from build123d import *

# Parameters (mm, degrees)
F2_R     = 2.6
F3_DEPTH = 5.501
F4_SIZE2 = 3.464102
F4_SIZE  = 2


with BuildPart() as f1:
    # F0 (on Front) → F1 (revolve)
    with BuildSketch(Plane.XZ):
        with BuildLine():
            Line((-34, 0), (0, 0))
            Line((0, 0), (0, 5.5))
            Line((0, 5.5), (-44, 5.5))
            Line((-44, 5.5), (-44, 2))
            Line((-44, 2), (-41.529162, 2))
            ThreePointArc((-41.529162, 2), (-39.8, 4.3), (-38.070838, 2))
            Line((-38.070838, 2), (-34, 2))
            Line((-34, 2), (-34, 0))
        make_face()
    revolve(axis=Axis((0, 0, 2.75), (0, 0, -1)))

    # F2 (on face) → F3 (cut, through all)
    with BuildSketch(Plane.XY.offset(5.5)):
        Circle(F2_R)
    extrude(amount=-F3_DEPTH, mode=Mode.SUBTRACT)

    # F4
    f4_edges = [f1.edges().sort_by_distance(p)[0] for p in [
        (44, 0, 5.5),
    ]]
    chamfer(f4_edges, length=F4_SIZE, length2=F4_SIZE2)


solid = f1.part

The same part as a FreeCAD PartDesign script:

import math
import FreeCAD as App
import Part
import Sketcher
Q = App.Units.Quantity


def edges_at(feature, points):
    """Names of the edges that pass closest to the given points."""
    edges = feature.Shape.Edges
    near = lambda p: min(range(len(edges)), key=lambda i: edges[i].distToShape(Part.Vertex(*p))[0])
    return sorted({f"Edge{near(p) + 1}" for p in points})

doc = App.newDocument("Part")
body = doc.addObject("PartDesign::Body", "Body")

sketch1 = body.newObject("Sketcher::SketchObject", "Sketch")
sketch1.AttachmentSupport = (doc.getObject("XZ_Plane"), [""])
sketch1.MapMode = "FlatFace"
sketch1.addGeometry([
    Part.LineSegment(App.Vector(-34, 0, 0), App.Vector(0, 0, 0)),
    Part.LineSegment(App.Vector(0, 0, 0), App.Vector(0, 5.5, 0)),
    Part.LineSegment(App.Vector(0, 5.5, 0), App.Vector(-44, 5.5, 0)),
    Part.LineSegment(App.Vector(-44, 5.5, 0), App.Vector(-44, 2, 0)),
    Part.LineSegment(App.Vector(-44, 2, 0), App.Vector(-41.5, 2, 0)),
    Part.ArcOfCircle(Part.Circle(App.Vector(-39.8, 2.5, 0), App.Vector(0, 0, 1), 1.8), math.radians(-16), math.radians(196)),
    Part.LineSegment(App.Vector(-38.1, 2, 0), App.Vector(-34, 2, 0)),
    Part.LineSegment(App.Vector(-34, 2, 0), App.Vector(-34, 0, 0)),
], False)
sketch1.addConstraint([
    Sketcher.Constraint("Coincident", 0, 2, 1, 1),
    Sketcher.Constraint("Coincident", 1, 2, 2, 1),
    Sketcher.Constraint("Coincident", 2, 2, 3, 1),
    Sketcher.Constraint("Coincident", 3, 2, 4, 1),
    Sketcher.Constraint("Coincident", 4, 2, 5, 2),
    Sketcher.Constraint("Coincident", 5, 1, 6, 1),
    Sketcher.Constraint("Coincident", 6, 2, 7, 1),
    Sketcher.Constraint("Coincident", 7, 2, 0, 1),
    Sketcher.Constraint("Horizontal", 0),
    Sketcher.Constraint("Vertical", 1),
    Sketcher.Constraint("Horizontal", 2),
    Sketcher.Constraint("Vertical", 3),
    Sketcher.Constraint("Horizontal", 4),
    Sketcher.Constraint("Horizontal", 6),
    Sketcher.Constraint("Vertical", 7),
    Sketcher.Constraint("Coincident", 0, 2, -1, 1),
    Sketcher.Constraint("Horizontal", 4, 2, 5, 1),
    Sketcher.Constraint("Radius", 5, Q("1.8 mm")),
    Sketcher.Constraint("DistanceX", 0, 1, 0, 2, Q("34 mm")),
    Sketcher.Constraint("DistanceX", 2, 2, 2, 1, Q("44 mm")),
    Sketcher.Constraint("DistanceY", 7, 2, 7, 1, Q("2 mm")),
    Sketcher.Constraint("DistanceY", 1, 1, 1, 2, Q("5.5 mm")),
    Sketcher.Constraint("DistanceY", 5, 3, 1, 2, Q("3 mm")),
    Sketcher.Constraint("DistanceX", 5, 3, -1, 1, Q("39.8 mm")),
])
revolution = body.newObject("PartDesign::Revolution", "Revolution")
revolution.Profile = sketch1
revolution.ReferenceAxis = (sketch1, ["V_Axis"])
revolution.Angle = 360

sketch2 = body.newObject("Sketcher::SketchObject", "Sketch001")
sketch2.AttachmentSupport = (doc.getObject("XY_Plane"), [""])
sketch2.MapMode = "FlatFace"
sketch2.AttachmentOffset = App.Placement(App.Vector(0, 0, 5.5), App.Rotation())
sketch2.addGeometry(Part.Circle(App.Vector(0, 0, 0), App.Vector(0, 0, 1), 2.6), False)
sketch2.addConstraint([
    Sketcher.Constraint("Coincident", 0, 3, -1, 1),
    Sketcher.Constraint("Diameter", 0, Q("5.2 mm")),
])
pocket1 = body.newObject("PartDesign::Pocket", "Pocket")
pocket1.Profile = sketch2
pocket1.Type = "ThroughAll"
doc.recompute()

chamfer = body.newObject("PartDesign::Chamfer", "Chamfer")
chamfer.Base = (pocket1, edges_at(pocket1, [(44, 0, 5.5)]))
chamfer.ChamferType = "Two distances"
chamfer.Size = 2
chamfer.Size2 = 3.464102

doc.recompute()
